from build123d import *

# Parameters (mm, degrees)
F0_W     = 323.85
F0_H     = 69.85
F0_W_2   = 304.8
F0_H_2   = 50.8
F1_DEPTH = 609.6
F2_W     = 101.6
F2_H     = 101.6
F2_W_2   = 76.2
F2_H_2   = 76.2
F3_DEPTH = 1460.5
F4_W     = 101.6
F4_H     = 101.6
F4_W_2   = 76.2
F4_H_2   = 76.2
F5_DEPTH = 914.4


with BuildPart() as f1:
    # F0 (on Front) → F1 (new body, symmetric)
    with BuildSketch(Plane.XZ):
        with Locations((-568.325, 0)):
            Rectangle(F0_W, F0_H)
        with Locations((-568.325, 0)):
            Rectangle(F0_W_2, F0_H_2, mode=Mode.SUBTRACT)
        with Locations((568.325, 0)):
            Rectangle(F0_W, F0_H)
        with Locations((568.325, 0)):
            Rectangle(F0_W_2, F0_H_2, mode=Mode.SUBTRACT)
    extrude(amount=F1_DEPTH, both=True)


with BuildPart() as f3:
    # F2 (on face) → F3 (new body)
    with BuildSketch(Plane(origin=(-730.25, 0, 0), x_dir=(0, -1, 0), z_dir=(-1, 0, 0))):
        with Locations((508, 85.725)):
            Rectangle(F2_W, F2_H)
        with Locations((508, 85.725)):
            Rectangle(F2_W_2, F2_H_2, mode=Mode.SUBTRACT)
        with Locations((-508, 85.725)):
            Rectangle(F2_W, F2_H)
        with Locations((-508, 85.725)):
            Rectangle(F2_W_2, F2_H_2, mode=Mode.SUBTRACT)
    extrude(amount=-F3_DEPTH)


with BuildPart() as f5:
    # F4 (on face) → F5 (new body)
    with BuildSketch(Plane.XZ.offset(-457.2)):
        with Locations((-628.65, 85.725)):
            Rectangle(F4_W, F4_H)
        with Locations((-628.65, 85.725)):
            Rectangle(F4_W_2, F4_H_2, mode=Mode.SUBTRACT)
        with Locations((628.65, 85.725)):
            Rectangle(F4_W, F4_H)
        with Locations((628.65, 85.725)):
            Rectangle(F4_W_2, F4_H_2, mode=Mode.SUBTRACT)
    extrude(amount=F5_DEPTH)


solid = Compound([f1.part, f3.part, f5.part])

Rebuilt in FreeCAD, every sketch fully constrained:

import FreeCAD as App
import Part
import Sketcher
Q = App.Units.Quantity

doc = App.newDocument("Part")
params = doc.addObject("Spreadsheet::Sheet", "Params")
for row, (alias, value) in enumerate([
    ("sketch1_width", "12 in"),
    ("sketch1_height", "2 in"),
    ("sketch1_width2", "12.75 in"),
    ("sketch1_height2", "2.75 in"),
    ("pad1_length", "48 in"),
    ("sketch2_width", "4 in"),
    ("sketch2_width2", "3 in"),
    ("pad2_length", "57.5 in"),
    ("sketch3_width", "4 in"),
    ("sketch3_width2", "3 in"),
    ("pad3_length", "36 in"),
], start=1):
    params.set(f"A{row}", alias)
    params.set(f"B{row}", "=" + value)
    params.setAlias(f"B{row}", alias)

body = doc.addObject("PartDesign::Body", "Body")
body.AllowCompound = True

# Sketch on XZ plane
sketch1 = doc.addObject("Sketcher::SketchObject", "Sketch")
body.addObject(sketch1)
sketch1.AttachmentSupport = (doc.XZ_Plane, [""])
sketch1.MapMode = "FlatFace"
sketch1.addGeometry(Part.LineSegment(App.Vector(-730, 35, 0), App.Vector(-730, -35, 0)), False)
sketch1.addGeometry(Part.LineSegment(App.Vector(-730, -35, 0), App.Vector(-406, -35, 0)), False)
sketch1.addGeometry(Part.LineSegment(App.Vector(-406, -35, 0), App.Vector(-406, 35, 0)), False)
sketch1.addGeometry(Part.LineSegment(App.Vector(-406, 35, 0), App.Vector(-730, 35, 0)), False)
sketch1.addGeometry(Part.LineSegment(App.Vector(-416, -25, 0), App.Vector(-721, -25, 0)), False)
sketch1.addGeometry(Part.LineSegment(App.Vector(-721, -25, 0), App.Vector(-721, 25, 0)), False)
sketch1.addGeometry(Part.LineSegment(App.Vector(-721, 25, 0), App.Vector(-416, 25, 0)), False)
sketch1.addGeometry(Part.LineSegment(App.Vector(-416, 25, 0), App.Vector(-416, -25, 0)), False)
sketch1.addGeometry(Part.LineSegment(App.Vector(406, 35, 0), App.Vector(406, -35, 0)), False)
sketch1.addGeometry(Part.LineSegment(App.Vector(406, -35, 0), App.Vector(730, -35, 0)), False)
sketch1.addGeometry(Part.LineSegment(App.Vector(730, -35, 0), App.Vector(730, 35, 0)), False)
sketch1.addGeometry(Part.LineSegment(App.Vector(730, 35, 0), App.Vector(406, 35, 0)), False)
sketch1.addGeometry(Part.LineSegment(App.Vector(721, -25, 0), App.Vector(416, -25, 0)), False)
sketch1.addGeometry(Part.LineSegment(App.Vector(416, -25, 0), App.Vector(416, 25, 0)), False)
sketch1.addGeometry(Part.LineSegment(App.Vector(416, 25, 0), App.Vector(721, 25, 0)), False)
sketch1.addGeometry(Part.LineSegment(App.Vector(721, 25, 0), App.Vector(721, -25, 0)), False)
sketch1.addConstraint(Sketcher.Constraint("Coincident", 0, 2, 1, 1))
sketch1.addConstraint(Sketcher.Constraint("Coincident", 1, 2, 2, 1))
sketch1.addConstraint(Sketcher.Constraint("Coincident", 2, 2, 3, 1))
sketch1.addConstraint(Sketcher.Constraint("Coincident", 3, 2, 0, 1))
sketch1.addConstraint(Sketcher.Constraint("Coincident", 4, 2, 5, 1))
sketch1.addConstraint(Sketcher.Constraint("Coincident", 5, 2, 6, 1))
sketch1.addConstraint(Sketcher.Constraint("Coincident", 6, 2, 7, 1))
sketch1.addConstraint(Sketcher.Constraint("Coincident", 7, 2, 4, 1))
sketch1.addConstraint(Sketcher.Constraint("Coincident", 8, 2, 9, 1))
sketch1.addConstraint(Sketcher.Constraint("Coincident", 9, 2, 10, 1))
sketch1.addConstraint(Sketcher.Constraint("Coincident", 10, 2, 11, 1))
sketch1.addConstraint(Sketcher.Constraint("Coincident", 11, 2, 8, 1))
sketch1.addConstraint(Sketcher.Constraint("Coincident", 12, 2, 13, 1))
sketch1.addConstraint(Sketcher.Constraint("Coincident", 13, 2, 14, 1))
sketch1.addConstraint(Sketcher.Constraint("Coincident", 14, 2, 15, 1))
sketch1.addConstraint(Sketcher.Constraint("Coincident", 15, 2, 12, 1))
sketch1.addConstraint(Sketcher.Constraint("Vertical", 0))
sketch1.addConstraint(Sketcher.Constraint("Horizontal", 1))
sketch1.addConstraint(Sketcher.Constraint("Vertical", 2))
sketch1.addConstraint(Sketcher.Constraint("Horizontal", 3))
sketch1.addConstraint(Sketcher.Constraint("Horizontal", 4))
sketch1.addConstraint(Sketcher.Constraint("Vertical", 5))
sketch1.addConstraint(Sketcher.Constraint("Horizontal", 6))
sketch1.addConstraint(Sketcher.Constraint("Vertical", 7))
sketch1.addConstraint(Sketcher.Constraint("Vertical", 8))
sketch1.addConstraint(Sketcher.Constraint("Horizontal", 9))
sketch1.addConstraint(Sketcher.Constraint("Vertical", 10))
sketch1.addConstraint(Sketcher.Constraint("Horizontal", 11))
sketch1.addConstraint(Sketcher.Constraint("Horizontal", 12))
sketch1.addConstraint(Sketcher.Constraint("Vertical", 13))
sketch1.addConstraint(Sketcher.Constraint("Horizontal", 14))
sketch1.addConstraint(Sketcher.Constraint("Vertical", 15))
sketch1.addConstraint(Sketcher.Constraint("Symmetric", 2, 2, 8, 2, -1, 1))
sketch1.addConstraint(Sketcher.Constraint("Symmetric", 0, 2, 10, 2, -1, 1))
sketch1.addConstraint(Sketcher.Constraint("Symmetric", 6, 2, 12, 2, -1, 1))
sketch1.addConstraint(Sketcher.Constraint("Symmetric", 4, 2, 14, 2, -1, 1))
sketch1.addConstraint(Sketcher.Constraint("Horizontal", 1, 2, 8, 2))
sketch1.addConstraint(Sketcher.Constraint("Horizontal", 7, 2, 12, 2))
sketch1.addConstraint(Sketcher.Constraint("DistanceX", 4, 2, 4, 1, Q("12 in")))
sketch1.addConstraint(Sketcher.Constraint("DistanceY", 5, 1, 5, 2, Q("2 in")))
sketch1.addConstraint(Sketcher.Constraint("DistanceX", 1, 2, -1, 1, Q("16 in")))
sketch1.addConstraint(Sketcher.Constraint("DistanceX", 1, 1, 1, 2, Q("12.75 in")))
sketch1.addConstraint(Sketcher.Constraint("DistanceY", 0, 2, 0, 1, Q("2.75 in")))
sketch1.addConstraint(Sketcher.Constraint("DistanceX", 4, 2, -1, 1, Q("28.375 in")))
sketch1.setExpression("Constraints[38]", "Params.sketch1_width")
sketch1.setExpression("Constraints[39]", "Params.sketch1_height")
sketch1.setExpression("Constraints[41]", "Params.sketch1_width2")
sketch1.setExpression("Constraints[42]", "Params.sketch1_height2")
pad1 = doc.addObject("PartDesign::Pad", "Pad")
body.addObject(pad1)
pad1.Profile = sketch1
pad1.setExpression("Length", "Params.pad1_length")
pad1.Midplane = True
body2 = doc.addObject("PartDesign::Body", "Body001")
body2.AllowCompound = True

# Sketch on YZ plane
sketch2 = doc.addObject("Sketcher::SketchObject", "Sketch001")
body2.addObject(sketch2)
sketch2.AttachmentSupport = (doc.getObject("YZ_Plane001"), [""])
sketch2.MapMode = "FlatFace"
sketch2.AttachmentOffset = App.Placement(App.Vector(0, 0, -28.75 * 25.4), App.Rotation())
sketch2.addGeometry(Part.LineSegment(App.Vector(-457, 137, 0), App.Vector(-457, 35, 0)), False)
sketch2.addGeometry(Part.LineSegment(App.Vector(-457, 35, 0), App.Vector(-559, 35, 0)), False)
sketch2.addGeometry(Part.LineSegment(App.Vector(-559, 35, 0), App.Vector(-559, 137, 0)), False)
sketch2.addGeometry(Part.LineSegment(App.Vector(-559, 137, 0), App.Vector(-457, 137, 0)), False)
sketch2.addGeometry(Part.LineSegment(App.Vector(-546, 48, 0), App.Vector(-470, 48, 0)), False)
sketch2.addGeometry(Part.LineSegment(App.Vector(-470, 48, 0), App.Vector(-470, 124, 0)), False)
sketch2.addGeometry(Part.LineSegment(App.Vector(-470, 124, 0), App.Vector(-546, 124, 0)), False)
sketch2.addGeometry(Part.LineSegment(App.Vector(-546, 124, 0), App.Vector(-546, 48, 0)), False)
sketch2.addGeometry(Part.LineSegment(App.Vector(559, 137, 0), App.Vector(559, 35, 0)), False)
sketch2.addGeometry(Part.LineSegment(App.Vector(559, 35, 0), App.Vector(457, 35, 0)), False)
sketch2.addGeometry(Part.LineSegment(App.Vector(457, 35, 0), App.Vector(457, 137, 0)), False)
sketch2.addGeometry(Part.LineSegment(App.Vector(457, 137, 0), App.Vector(559, 137, 0)), False)
sketch2.addGeometry(Part.LineSegment(App.Vector(470, 48, 0), App.Vector(546, 48, 0)), False)
sketch2.addGeometry(Part.LineSegment(App.Vector(546, 48, 0), App.Vector(546, 124, 0)), False)
sketch2.addGeometry(Part.LineSegment(App.Vector(546, 124, 0), App.Vector(470, 124, 0)), False)
sketch2.addGeometry(Part.LineSegment(App.Vector(470, 124, 0), App.Vector(470, 48, 0)), False)
sketch2.addConstraint(Sketcher.Constraint("Coincident", 0, 2, 1, 1))
sketch2.addConstraint(Sketcher.Constraint("Coincident", 1, 2, 2, 1))
sketch2.addConstraint(Sketcher.Constraint("Coincident", 2, 2, 3, 1))
sketch2.addConstraint(Sketcher.Constraint("Coincident", 3, 2, 0, 1))
sketch2.addConstraint(Sketcher.Constraint("Coincident", 4, 2, 5, 1))
sketch2.addConstraint(Sketcher.Constraint("Coincident", 5, 2, 6, 1))
sketch2.addConstraint(Sketcher.Constraint("Coincident", 6, 2, 7, 1))
sketch2.addConstraint(Sketcher.Constraint("Coincident", 7, 2, 4, 1))
sketch2.addConstraint(Sketcher.Constraint("Coincident", 8, 2, 9, 1))
sketch2.addConstraint(Sketcher.Constraint("Coincident", 9, 2, 10, 1))
sketch2.addConstraint(Sketcher.Constraint("Coincident", 10, 2, 11, 1))
sketch2.addConstraint(Sketcher.Constraint("Coincident", 11, 2, 8, 1))
sketch2.addConstraint(Sketcher.Constraint("Coincident", 12, 2, 13, 1))
sketch2.addConstraint(Sketcher.Constraint("Coincident", 13, 2, 14, 1))
sketch2.addConstraint(Sketcher.Constraint("Coincident", 14, 2, 15, 1))
sketch2.addConstraint(Sketcher.Constraint("Coincident", 15, 2, 12, 1))
sketch2.addConstraint(Sketcher.Constraint("Vertical", 0))
sketch2.addConstraint(Sketcher.Constraint("Horizontal", 1))
sketch2.addConstraint(Sketcher.Constraint("Vertical", 2))
sketch2.addConstraint(Sketcher.Constraint("Horizontal", 3))
sketch2.addConstraint(Sketcher.Constraint("Horizontal", 4))
sketch2.addConstraint(Sketcher.Constraint("Vertical", 5))
sketch2.addConstraint(Sketcher.Constraint("Horizontal", 6))
sketch2.addConstraint(Sketcher.Constraint("Vertical", 7))
sketch2.addConstraint(Sketcher.Constraint("Vertical", 8))
sketch2.addConstraint(Sketcher.Constraint("Horizontal", 9))
sketch2.addConstraint(Sketcher.Constraint("Vertical", 10))
sketch2.addConstraint(Sketcher.Constraint("Horizontal", 11))
sketch2.addConstraint(Sketcher.Constraint("Horizontal", 12))
sketch2.addConstraint(Sketcher.Constraint("Vertical", 13))
sketch2.addConstraint(Sketcher.Constraint("Horizontal", 14))
sketch2.addConstraint(Sketcher.Constraint("Vertical", 15))
sketch2.addConstraint(Sketcher.Constraint("Symmetric", 1, 2, 8, 2, -2))
sketch2.addConstraint(Sketcher.Constraint("Symmetric", 3, 2, 10, 2, -2))
sketch2.addConstraint(Sketcher.Constraint("Symmetric", 7, 2, 12, 2, -2))
sketch2.addConstraint(Sketcher.Constraint("Symmetric", 5, 2, 14, 2, -2))
sketch2.addConstraint(Sketcher.Constraint("Equal", 11, 0))
sketch2.addConstraint(Sketcher.Constraint("Equal", 14, 5))
sketch2.addConstraint(Sketcher.Constraint("DistanceX", 1, 2, 1, 1, Q("4 in")))
sketch2.addConstraint(Sketcher.Constraint("DistanceX", 4, 1, 4, 2, Q("3 in")))
sketch2.addConstraint(Sketcher.Constraint("DistanceX", 0, 2, -1, 1, Q("18 in")))
sketch2.addConstraint(Sketcher.Constraint("DistanceX", 4, 2, -1, 1, Q("18.5 in")))
sketch2.addConstraint(Sketcher.Constraint("DistanceY", 0, 2, 4, 2, Q("0.5 in")))
sketch2.addConstraint(Sketcher.Constraint("DistanceY", -1, 1, 0, 2, Q("1.375 in")))
sketch2.setExpression("Constraints[38]", "Params.sketch2_width")
sketch2.setExpression("Constraints[39]", "Params.sketch2_width2")
pad2 = doc.addObject("PartDesign::Pad", "Pad001")
body2.addObject(pad2)
pad2.Profile = sketch2
pad2.setExpression("Length", "Params.pad2_length")
body3 = doc.addObject("PartDesign::Body", "Body002")
body3.AllowCompound = True

# Sketch on XZ plane
sketch3 = doc.addObject("Sketcher::SketchObject", "Sketch002")
body3.addObject(sketch3)
sketch3.AttachmentSupport = (doc.getObject("XZ_Plane002"), [""])
sketch3.MapMode = "FlatFace"
sketch3.AttachmentOffset = App.Placement(App.Vector(0, 0, -18 * 25.4), App.Rotation())
sketch3.addGeometry(Part.LineSegment(App.Vector(-679, 137, 0), App.Vector(-679, 35, 0)), False)
sketch3.addGeometry(Part.LineSegment(App.Vector(-679, 35, 0), App.Vector(-578, 35, 0)), False)
sketch3.addGeometry(Part.LineSegment(App.Vector(-578, 35, 0), App.Vector(-578, 137, 0)), False)
sketch3.addGeometry(Part.LineSegment(App.Vector(-578, 137, 0), App.Vector(-679, 137, 0)), False)
sketch3.addGeometry(Part.LineSegment(App.Vector(-591, 48, 0), App.Vector(-667, 48, 0)), False)
sketch3.addGeometry(Part.LineSegment(App.Vector(-667, 48, 0), App.Vector(-667, 124, 0)), False)
sketch3.addGeometry(Part.LineSegment(App.Vector(-667, 124, 0), App.Vector(-591, 124, 0)), False)
sketch3.addGeometry(Part.LineSegment(App.Vector(-591, 124, 0), App.Vector(-591, 48, 0)), False)
sketch3.addGeometry(Part.LineSegment(App.Vector(578, 137, 0), App.Vector(578, 35, 0)), False)
sketch3.addGeometry(Part.LineSegment(App.Vector(578, 35, 0), App.Vector(679, 35, 0)), False)
sketch3.addGeometry(Part.LineSegment(App.Vector(679, 35, 0), App.Vector(679, 137, 0)), False)
sketch3.addGeometry(Part.LineSegment(App.Vector(679, 137, 0), App.Vector(578, 137, 0)), False)
sketch3.addGeometry(Part.LineSegment(App.Vector(667, 48, 0), App.Vector(591, 48, 0)), False)
sketch3.addGeometry(Part.LineSegment(App.Vector(591, 48, 0), App.Vector(591, 124, 0)), False)
sketch3.addGeometry(Part.LineSegment(App.Vector(591, 124, 0), App.Vector(667, 124, 0)), False)
sketch3.addGeometry(Part.LineSegment(App.Vector(667, 124, 0), App.Vector(667, 48, 0)), False)
sketch3.addConstraint(Sketcher.Constraint("Coincident", 0, 2, 1, 1))
sketch3.addConstraint(Sketcher.Constraint("Coincident", 1, 2, 2, 1))
sketch3.addConstraint(Sketcher.Constraint("Coincident", 2, 2, 3, 1))
sketch3.addConstraint(Sketcher.Constraint("Coincident", 3, 2, 0, 1))
sketch3.addConstraint(Sketcher.Constraint("Coincident", 4, 2, 5, 1))
sketch3.addConstraint(Sketcher.Constraint("Coincident", 5, 2, 6, 1))
sketch3.addConstraint(Sketcher.Constraint("Coincident", 6, 2, 7, 1))
sketch3.addConstraint(Sketcher.Constraint("Coincident", 7, 2, 4, 1))
sketch3.addConstraint(Sketcher.Constraint("Coincident", 8, 2, 9, 1))
sketch3.addConstraint(Sketcher.Constraint("Coincident", 9, 2, 10, 1))
sketch3.addConstraint(Sketcher.Constraint("Coincident", 10, 2, 11, 1))
sketch3.addConstraint(Sketcher.Constraint("Coincident", 11, 2, 8, 1))
sketch3.addConstraint(Sketcher.Constraint("Coincident", 12, 2, 13, 1))
sketch3.addConstraint(Sketcher.Constraint("Coincident", 13, 2, 14, 1))
sketch3.addConstraint(Sketcher.Constraint("Coincident", 14, 2, 15, 1))
sketch3.addConstraint(Sketcher.Constraint("Coincident", 15, 2, 12, 1))
sketch3.addConstraint(Sketcher.Constraint("Vertical", 0))
sketch3.addConstraint(Sketcher.Constraint("Horizontal", 1))
sketch3.addConstraint(Sketcher.Constraint("Vertical", 2))
sketch3.addConstraint(Sketcher.Constraint("Horizontal", 3))
sketch3.addConstraint(Sketcher.Constraint("Horizontal", 4))
sketch3.addConstraint(Sketcher.Constraint("Vertical", 5))
sketch3.addConstraint(Sketcher.Constraint("Horizontal", 6))
sketch3.addConstraint(Sketcher.Constraint("Vertical", 7))
sketch3.addConstraint(Sketcher.Constraint("Vertical", 8))
sketch3.addConstraint(Sketcher.Constraint("Horizontal", 9))
sketch3.addConstraint(Sketcher.Constraint("Vertical", 10))
sketch3.addConstraint(Sketcher.Constraint("Horizontal", 11))
sketch3.addConstraint(Sketcher.Constraint("Horizontal", 12))
sketch3.addConstraint(Sketcher.Constraint("Vertical", 13))
sketch3.addConstraint(Sketcher.Constraint("Horizontal", 14))
sketch3.addConstraint(Sketcher.Constraint("Vertical", 15))
sketch3.addConstraint(Sketcher.Constraint("Symmetric", 1, 2, 8, 2, -2))
sketch3.addConstraint(Sketcher.Constraint("Symmetric", 3, 2, 10, 2, -2))
sketch3.addConstraint(Sketcher.Constraint("Symmetric", 7, 2, 12, 2, -2))
sketch3.addConstraint(Sketcher.Constraint("Symmetric", 5, 2, 14, 2, -2))
sketch3.addConstraint(Sketcher.Constraint("Equal", 11, 0))
sketch3.addConstraint(Sketcher.Constraint("Equal", 14, 5))
sketch3.addConstraint(Sketcher.Constraint("DistanceX", 1, 1, 1, 2, Q("4 in")))
sketch3.addConstraint(Sketcher.Constraint("DistanceX", 4, 2, 4, 1, Q("3 in")))
sketch3.addConstraint(Sketcher.Constraint("DistanceX", 7, 2, 8, 2, Q("46 in")))
sketch3.addConstraint(Sketcher.Constraint("DistanceX", 0, 2, 4, 2, Q("0.5 in")))
sketch3.addConstraint(Sketcher.Constraint("DistanceY", 0, 2, 4, 2, Q("0.5 in")))
sketch3.addConstraint(Sketcher.Constraint("DistanceY", -1, 1, 0, 2, Q("1.375 in")))
sketch3.setExpression("Constraints[38]", "Params.sketch3_width")
sketch3.setExpression("Constraints[39]", "Params.sketch3_width2")
pad3 = doc.addObject("PartDesign::Pad", "Pad002")
body3.addObject(pad3)
pad3.Profile = sketch3
pad3.setExpression("Length", "Params.pad3_length")

doc.recompute()
